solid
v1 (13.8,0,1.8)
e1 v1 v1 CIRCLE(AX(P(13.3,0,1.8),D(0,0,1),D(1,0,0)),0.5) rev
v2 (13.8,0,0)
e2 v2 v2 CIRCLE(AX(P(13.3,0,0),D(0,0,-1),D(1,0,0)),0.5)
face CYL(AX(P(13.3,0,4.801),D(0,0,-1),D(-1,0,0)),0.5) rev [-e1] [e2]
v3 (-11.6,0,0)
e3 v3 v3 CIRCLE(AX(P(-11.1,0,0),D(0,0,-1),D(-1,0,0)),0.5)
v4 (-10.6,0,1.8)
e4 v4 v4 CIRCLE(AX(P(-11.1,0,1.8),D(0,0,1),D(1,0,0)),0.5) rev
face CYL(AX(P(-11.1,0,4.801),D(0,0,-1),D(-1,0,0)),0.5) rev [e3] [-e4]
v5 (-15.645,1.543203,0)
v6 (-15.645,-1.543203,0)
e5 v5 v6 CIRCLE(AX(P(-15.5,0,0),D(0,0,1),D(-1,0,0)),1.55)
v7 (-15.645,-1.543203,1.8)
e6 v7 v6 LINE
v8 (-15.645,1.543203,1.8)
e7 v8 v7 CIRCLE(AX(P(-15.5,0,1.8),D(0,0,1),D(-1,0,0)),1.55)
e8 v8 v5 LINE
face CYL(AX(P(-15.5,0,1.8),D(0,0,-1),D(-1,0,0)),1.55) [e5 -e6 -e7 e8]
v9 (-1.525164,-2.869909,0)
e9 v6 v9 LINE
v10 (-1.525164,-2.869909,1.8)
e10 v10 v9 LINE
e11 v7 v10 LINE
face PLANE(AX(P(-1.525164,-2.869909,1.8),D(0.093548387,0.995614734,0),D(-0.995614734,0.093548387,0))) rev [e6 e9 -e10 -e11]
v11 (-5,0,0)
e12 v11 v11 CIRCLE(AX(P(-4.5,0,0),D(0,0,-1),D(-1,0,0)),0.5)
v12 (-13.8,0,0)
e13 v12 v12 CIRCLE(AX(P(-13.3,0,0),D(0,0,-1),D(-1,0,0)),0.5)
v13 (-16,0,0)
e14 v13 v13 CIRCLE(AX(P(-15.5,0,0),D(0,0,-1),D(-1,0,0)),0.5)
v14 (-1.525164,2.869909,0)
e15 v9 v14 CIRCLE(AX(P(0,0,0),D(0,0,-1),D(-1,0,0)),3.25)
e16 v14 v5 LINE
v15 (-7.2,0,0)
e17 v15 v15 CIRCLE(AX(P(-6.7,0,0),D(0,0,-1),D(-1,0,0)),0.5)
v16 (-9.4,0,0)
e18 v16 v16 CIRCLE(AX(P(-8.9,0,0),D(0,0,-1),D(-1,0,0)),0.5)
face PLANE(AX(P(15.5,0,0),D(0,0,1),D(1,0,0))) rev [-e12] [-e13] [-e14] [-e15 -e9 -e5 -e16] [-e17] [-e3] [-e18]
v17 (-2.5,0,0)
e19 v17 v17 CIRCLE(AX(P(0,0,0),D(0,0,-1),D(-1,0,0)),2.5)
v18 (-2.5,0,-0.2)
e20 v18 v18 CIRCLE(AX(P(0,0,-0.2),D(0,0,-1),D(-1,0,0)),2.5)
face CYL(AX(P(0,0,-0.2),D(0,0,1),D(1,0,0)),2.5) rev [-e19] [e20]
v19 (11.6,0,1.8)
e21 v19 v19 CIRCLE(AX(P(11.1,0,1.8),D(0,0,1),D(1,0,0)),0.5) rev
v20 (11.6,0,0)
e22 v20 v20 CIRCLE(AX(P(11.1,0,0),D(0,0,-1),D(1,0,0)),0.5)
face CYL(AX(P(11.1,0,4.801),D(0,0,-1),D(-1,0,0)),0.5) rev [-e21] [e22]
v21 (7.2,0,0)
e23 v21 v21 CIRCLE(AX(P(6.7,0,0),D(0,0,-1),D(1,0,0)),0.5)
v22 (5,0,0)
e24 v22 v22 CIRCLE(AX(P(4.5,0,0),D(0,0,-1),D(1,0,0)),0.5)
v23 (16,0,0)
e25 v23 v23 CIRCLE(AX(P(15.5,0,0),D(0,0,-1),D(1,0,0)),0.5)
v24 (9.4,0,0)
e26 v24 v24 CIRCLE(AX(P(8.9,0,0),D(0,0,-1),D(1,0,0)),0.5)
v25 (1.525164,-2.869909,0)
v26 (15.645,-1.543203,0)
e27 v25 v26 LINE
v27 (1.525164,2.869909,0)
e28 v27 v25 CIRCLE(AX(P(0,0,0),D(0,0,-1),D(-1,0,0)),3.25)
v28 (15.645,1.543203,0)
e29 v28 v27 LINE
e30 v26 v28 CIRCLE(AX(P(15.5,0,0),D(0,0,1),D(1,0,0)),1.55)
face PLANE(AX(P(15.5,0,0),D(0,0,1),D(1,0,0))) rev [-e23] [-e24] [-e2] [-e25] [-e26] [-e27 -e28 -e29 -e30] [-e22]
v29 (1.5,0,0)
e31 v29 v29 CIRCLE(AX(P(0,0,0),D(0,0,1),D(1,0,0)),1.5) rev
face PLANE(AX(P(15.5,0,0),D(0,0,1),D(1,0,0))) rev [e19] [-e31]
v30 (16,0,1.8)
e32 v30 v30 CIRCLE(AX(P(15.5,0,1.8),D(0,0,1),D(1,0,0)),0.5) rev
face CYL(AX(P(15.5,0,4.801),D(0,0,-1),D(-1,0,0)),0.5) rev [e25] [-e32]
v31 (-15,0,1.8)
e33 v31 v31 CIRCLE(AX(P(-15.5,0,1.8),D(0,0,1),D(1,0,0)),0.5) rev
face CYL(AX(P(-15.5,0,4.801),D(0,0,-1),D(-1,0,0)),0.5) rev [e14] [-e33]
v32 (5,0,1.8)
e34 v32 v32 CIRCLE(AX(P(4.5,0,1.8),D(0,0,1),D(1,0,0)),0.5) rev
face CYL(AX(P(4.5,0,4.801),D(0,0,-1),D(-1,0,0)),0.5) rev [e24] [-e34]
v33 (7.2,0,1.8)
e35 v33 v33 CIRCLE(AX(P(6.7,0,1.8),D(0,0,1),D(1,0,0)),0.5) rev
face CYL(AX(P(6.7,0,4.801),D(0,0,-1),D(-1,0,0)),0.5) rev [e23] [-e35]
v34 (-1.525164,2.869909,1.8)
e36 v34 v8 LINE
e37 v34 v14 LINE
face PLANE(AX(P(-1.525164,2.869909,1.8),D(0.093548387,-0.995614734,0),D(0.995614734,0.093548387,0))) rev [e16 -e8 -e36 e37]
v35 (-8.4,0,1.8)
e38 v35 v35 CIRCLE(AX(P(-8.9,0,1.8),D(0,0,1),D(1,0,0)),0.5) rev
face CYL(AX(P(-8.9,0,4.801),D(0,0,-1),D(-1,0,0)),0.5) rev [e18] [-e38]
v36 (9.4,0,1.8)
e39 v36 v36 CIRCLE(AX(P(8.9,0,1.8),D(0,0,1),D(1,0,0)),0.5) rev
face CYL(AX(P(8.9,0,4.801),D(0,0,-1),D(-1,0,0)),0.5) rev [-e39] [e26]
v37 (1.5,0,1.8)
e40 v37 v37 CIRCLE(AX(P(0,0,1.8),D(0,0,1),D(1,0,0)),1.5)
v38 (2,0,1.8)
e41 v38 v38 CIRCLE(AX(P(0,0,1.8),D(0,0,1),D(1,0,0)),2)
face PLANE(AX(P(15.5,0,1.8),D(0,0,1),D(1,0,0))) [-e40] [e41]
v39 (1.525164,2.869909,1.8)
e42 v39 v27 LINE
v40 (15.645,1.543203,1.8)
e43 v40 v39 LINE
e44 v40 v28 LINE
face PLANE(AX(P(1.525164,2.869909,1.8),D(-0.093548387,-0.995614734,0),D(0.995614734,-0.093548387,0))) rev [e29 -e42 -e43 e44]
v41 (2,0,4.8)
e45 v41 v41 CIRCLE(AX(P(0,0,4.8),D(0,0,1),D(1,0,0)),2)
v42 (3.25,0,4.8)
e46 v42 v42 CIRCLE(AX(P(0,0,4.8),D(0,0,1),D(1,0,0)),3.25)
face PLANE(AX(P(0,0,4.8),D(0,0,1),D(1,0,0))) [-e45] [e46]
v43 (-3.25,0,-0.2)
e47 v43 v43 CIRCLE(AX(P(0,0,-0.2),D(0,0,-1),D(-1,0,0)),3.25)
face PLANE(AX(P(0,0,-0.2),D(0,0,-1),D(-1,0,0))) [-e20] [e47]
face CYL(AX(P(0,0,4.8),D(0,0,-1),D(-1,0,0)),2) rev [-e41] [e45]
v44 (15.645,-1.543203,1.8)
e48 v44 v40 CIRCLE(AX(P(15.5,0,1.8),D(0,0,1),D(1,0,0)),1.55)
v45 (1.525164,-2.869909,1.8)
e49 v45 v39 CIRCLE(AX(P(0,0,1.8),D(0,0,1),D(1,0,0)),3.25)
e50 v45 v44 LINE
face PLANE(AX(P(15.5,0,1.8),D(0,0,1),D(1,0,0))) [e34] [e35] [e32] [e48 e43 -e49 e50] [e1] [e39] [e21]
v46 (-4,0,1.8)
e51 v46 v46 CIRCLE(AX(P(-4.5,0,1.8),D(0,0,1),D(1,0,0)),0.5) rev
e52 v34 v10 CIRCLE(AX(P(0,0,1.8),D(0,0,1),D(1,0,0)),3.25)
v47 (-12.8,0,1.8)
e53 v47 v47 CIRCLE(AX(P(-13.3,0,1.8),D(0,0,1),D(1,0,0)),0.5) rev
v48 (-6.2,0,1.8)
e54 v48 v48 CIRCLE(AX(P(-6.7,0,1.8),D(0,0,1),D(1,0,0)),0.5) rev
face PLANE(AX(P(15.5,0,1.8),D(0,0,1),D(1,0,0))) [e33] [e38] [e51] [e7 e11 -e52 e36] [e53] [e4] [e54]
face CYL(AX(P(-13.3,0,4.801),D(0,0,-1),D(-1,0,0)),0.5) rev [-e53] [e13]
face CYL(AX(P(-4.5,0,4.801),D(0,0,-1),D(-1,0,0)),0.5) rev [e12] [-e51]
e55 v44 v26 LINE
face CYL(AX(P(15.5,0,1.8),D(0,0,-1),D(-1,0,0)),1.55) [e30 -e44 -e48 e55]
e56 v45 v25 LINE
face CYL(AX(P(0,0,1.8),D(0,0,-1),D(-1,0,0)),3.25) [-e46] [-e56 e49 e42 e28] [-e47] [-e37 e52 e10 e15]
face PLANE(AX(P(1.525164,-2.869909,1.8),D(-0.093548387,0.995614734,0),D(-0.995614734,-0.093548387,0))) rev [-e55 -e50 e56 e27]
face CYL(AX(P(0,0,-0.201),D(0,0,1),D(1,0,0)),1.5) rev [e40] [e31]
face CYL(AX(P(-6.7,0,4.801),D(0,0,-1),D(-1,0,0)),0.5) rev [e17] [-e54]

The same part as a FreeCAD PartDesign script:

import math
import FreeCAD as App
import Part
import Sketcher
Q = App.Units.Quantity

doc = App.newDocument("Part")
body = doc.addObject("PartDesign::Body", "Body")

sketch1 = doc.addObject("Sketcher::SketchObject", "Sketch")
body.addObject(sketch1)
sketch1.AttachmentSupport = (doc.XY_Plane, [""])
sketch1.MapMode = "FlatFace"
sketch1.addGeometry([
    Part.LineSegment(App.Vector(15.6, 1.5, 0), App.Vector(1.5, 2.9, 0)),
    Part.ArcOfCircle(Part.Circle(App.Vector(0, 0, 0), App.Vector(0, 0, 1), 3.2), math.radians(62), math.radians(118)),
    Part.LineSegment(App.Vector(-1.5, 2.9, 0), App.Vector(-15.6, 1.5, 0)),
    Part.ArcOfCircle(Part.Circle(App.Vector(-15.5, 0, 0), App.Vector(0, 0, 1), 1.6), math.radians(95), math.radians(265)),
    Part.LineSegment(App.Vector(-15.6, -1.5, 0), App.Vector(-1.5, -2.9, 0)),
    Part.ArcOfCircle(Part.Circle(App.Vector(0, 0, 0), App.Vector(0, 0, 1), 3.2), math.radians(-118), math.radians(-62)),
    Part.LineSegment(App.Vector(1.5, -2.9, 0), App.Vector(15.6, -1.5, 0)),
    Part.ArcOfCircle(Part.Circle(App.Vector(15.5, 0, 0), App.Vector(0, 0, 1), 1.6), math.radians(-85), math.radians(85)),
], False)
sketch1.addConstraint([
    Sketcher.Constraint("Coincident", 0, 2, 1, 1),
    Sketcher.Constraint("Coincident", 1, 2, 2, 1),
    Sketcher.Constraint("Tangent", 2, 2, 3, 1),
    Sketcher.Constraint("Tangent", 3, 2, 4, 1),
    Sketcher.Constraint("Coincident", 4, 2, 5, 1),
    Sketcher.Constraint("Coincident", 5, 2, 6, 1),
    Sketcher.Constraint("Tangent", 6, 2, 7, 1),
    Sketcher.Constraint("Tangent", 7, 2, 0, 1),
    Sketcher.Constraint("Coincident", 1, 3, -1, 1),
    Sketcher.Constraint("Coincident", 5, 3, -1, 1),
    Sketcher.Constraint("Equal", 1, 5),
    Sketcher.Constraint("Equal", 3, 7),
    Sketcher.Constraint("Symmetric", 3, 3, 7, 3, -1, 1),
    Sketcher.Constraint("Symmetric", 3, 2, 6, 2, -2),
    Sketcher.Constraint("Parallel", 0, 4),
    Sketcher.Constraint("Parallel", 2, 6),
    Sketcher.Constraint("Radius", 1, Q("3.25 mm")),
    Sketcher.Constraint("Radius", 3, Q("1.55 mm")),
    Sketcher.Constraint("DistanceX", 3, 3, 7, 3, Q("31 mm")),
    Sketcher.Constraint("DistanceX", 2, 2, -1, 1, Q("15.645 mm")),
])
pad1 = doc.addObject("PartDesign::Pad", "Pad")
body.addObject(pad1)
pad1.Profile = sketch1
pad1.Length = 1.8

sketch2 = doc.addObject("Sketcher::SketchObject", "Sketch001")
body.addObject(sketch2)
sketch2.AttachmentSupport = (doc.XY_Plane, [""])
sketch2.MapMode = "FlatFace"
sketch2.addGeometry([
    Part.Circle(App.Vector(0, 0, 0), App.Vector(0, 0, 1), 3.2),
    Part.Circle(App.Vector(0, 0, 0), App.Vector(0, 0, 1), 2.5),
], False)
sketch2.addConstraint([
    Sketcher.Constraint("Coincident", 0, 3, -1, 1),
    Sketcher.Constraint("Coincident", 1, 3, -1, 1),
    Sketcher.Constraint("Diameter", 1, Q("5 mm")),
    Sketcher.Constraint("Diameter", 0, Q("6.5 mm")),
])
pad2 = doc.addObject("PartDesign::Pad", "Pad001")
body.addObject(pad2)
pad2.Profile = sketch2
pad2.Length = 0.2
pad2.Reversed = True

sketch3 = doc.addObject("Sketcher::SketchObject", "Sketch002")
body.addObject(sketch3)
sketch3.AttachmentSupport = (doc.XY_Plane, [""])
sketch3.MapMode = "FlatFace"
sketch3.AttachmentOffset = App.Placement(App.Vector(0, 0, 1.8), App.Rotation())
sketch3.addGeometry([
    Part.Circle(App.Vector(0, 0, 0), App.Vector(0, 0, 1), 3.2),
    Part.Circle(App.Vector(0, 0, 0), App.Vector(0, 0, 1), 2),
], False)
sketch3.addConstraint([
    Sketcher.Constraint("Coincident", 0, 3, -1, 1),
    Sketcher.Constraint("Coincident", 1, 3, -1, 1),
    Sketcher.Constraint("Diameter", 1, Q("4 mm")),
    Sketcher.Constraint("Diameter", 0, Q("6.5 mm")),
])
pad3 = doc.addObject("PartDesign::Pad", "Pad002")
body.addObject(pad3)
pad3.Profile = sketch3
pad3.Length = 3

sketch4 = doc.addObject("Sketcher::SketchObject", "Sketch003")
body.addObject(sketch4)
sketch4.AttachmentSupport = (doc.XY_Plane, [""])
sketch4.MapMode = "FlatFace"
sketch4.AttachmentOffset = App.Placement(App.Vector(0, 0, 1.8), App.Rotation())
sketch4.addGeometry(Part.Circle(App.Vector(0, 0, 0), App.Vector(0, 0, 1), 1.5), False)
sketch4.addConstraint([
    Sketcher.Constraint("Coincident", 0, 3, -1, 1),
    Sketcher.Constraint("Diameter", 0, Q("3 mm")),
])
pocket1 = doc.addObject("PartDesign::Pocket", "Pocket")
body.addObject(pocket1)
pocket1.Profile = sketch4
pocket1.Type = "UpToFirst"

sketch5 = doc.addObject("Sketcher::SketchObject", "Sketch004")
body.addObject(sketch5)
sketch5.AttachmentSupport = (doc.XY_Plane, [""])
sketch5.MapMode = "FlatFace"
sketch5.addGeometry(Part.Circle(App.Vector(-15.5, 0, 0), App.Vector(0, 0, 1), 0.5), False)
sketch5.addConstraint([
    Sketcher.Constraint("PointOnObject", 0, 3, -1),
    Sketcher.Constraint("Diameter", 0, Q("1 mm")),
    Sketcher.Constraint("DistanceX", 0, 3, -1, 1, Q("15.5 mm")),
])
pocket2 = doc.addObject("PartDesign::Pocket", "Pocket001")
body.addObject(pocket2)
pocket2.Profile = sketch5
pocket2.Type = "UpToFirst"
pocket2.Reversed = True

sketch6 = doc.addObject("Sketcher::SketchObject", "Sketch005")
body.addObject(sketch6)
sketch6.AttachmentSupport = (doc.XY_Plane, [""])
sketch6.MapMode = "FlatFace"
sketch6.addGeometry(Part.Circle(App.Vector(-13.3, 0, 0), App.Vector(0, 0, 1), 0.5), False)
sketch6.addConstraint([
    Sketcher.Constraint("PointOnObject", 0, 3, -1),
    Sketcher.Constraint("Diameter", 0, Q("1 mm")),
    Sketcher.Constraint("DistanceX", 0, 3, -1, 1, Q("13.3 mm")),
])
pocket3 = doc.addObject("PartDesign::Pocket", "Pocket002")
body.addObject(pocket3)
pocket3.Profile = sketch6
pocket3.Type = "UpToFirst"
pocket3.Reversed = True

sketch7 = doc.addObject("Sketcher::SketchObject", "Sketch006")
body.addObject(sketch7)
sketch7.AttachmentSupport = (doc.XY_Plane, [""])
sketch7.MapMode = "FlatFace"
sketch7.addGeometry(Part.Circle(App.Vector(-11.1, 0, 0), App.Vector(0, 0, 1), 0.5), False)
sketch7.addConstraint([
    Sketcher.Constraint("PointOnObject", 0, 3, -1),
    Sketcher.Constraint("Diameter", 0, Q("1 mm")),
    Sketcher.Constraint("DistanceX", 0, 3, -1, 1, Q("11.1 mm")),
])
pocket4 = doc.addObject("PartDesign::Pocket", "Pocket003")
body.addObject(pocket4)
pocket4.Profile = sketch7
pocket4.Type = "UpToFirst"
pocket4.Reversed = True

sketch8 = doc.addObject("Sketcher::SketchObject", "Sketch007")
body.addObject(sketch8)
sketch8.AttachmentSupport = (doc.XY_Plane, [""])
sketch8.MapMode = "FlatFace"
sketch8.addGeometry(Part.Circle(App.Vector(-8.9, 0, 0), App.Vector(0, 0, 1), 0.5), False)
sketch8.addConstraint([
    Sketcher.Constraint("PointOnObject", 0, 3, -1),
    Sketcher.Constraint("Diameter", 0, Q("1 mm")),
    Sketcher.Constraint("DistanceX", 0, 3, -1, 1, Q("8.9 mm")),
])
pocket5 = doc.addObject("PartDesign::Pocket", "Pocket004")
body.addObject(pocket5)
pocket5.Profile = sketch8
pocket5.Type = "UpToFirst"
pocket5.Reversed = True

sketch9 = doc.addObject("Sketcher::SketchObject", "Sketch008")
body.addObject(sketch9)
sketch9.AttachmentSupport = (doc.XY_Plane, [""])
sketch9.MapMode = "FlatFace"
sketch9.addGeometry(Part.Circle(App.Vector(-6.7, 0, 0), App.Vector(0, 0, 1), 0.5), False)
sketch9.addConstraint([
    Sketcher.Constraint("PointOnObject", 0, 3, -1),
    Sketcher.Constraint("Diameter", 0, Q("1 mm")),
    Sketcher.Constraint("DistanceX", 0, 3, -1, 1, Q("6.7 mm")),
])
pocket6 = doc.addObject("PartDesign::Pocket", "Pocket005")
body.addObject(pocket6)
pocket6.Profile = sketch9
pocket6.Type = "UpToFirst"
pocket6.Reversed = True

sketch10 = doc.addObject("Sketcher::SketchObject", "Sketch009")
body.addObject(sketch10)
sketch10.AttachmentSupport = (doc.XY_Plane, [""])
sketch10.MapMode = "FlatFace"
sketch10.addGeometry(Part.Circle(App.Vector(-4.5, 0, 0), App.Vector(0, 0, 1), 0.5), False)
sketch10.addConstraint([
    Sketcher.Constraint("PointOnObject", 0, 3, -1),
    Sketcher.Constraint("Diameter", 0, Q("1 mm")),
    Sketcher.Constraint("DistanceX", 0, 3, -1, 1, Q("4.5 mm")),
])
pocket7 = doc.addObject("PartDesign::Pocket", "Pocket006")
body.addObject(pocket7)
pocket7.Profile = sketch10
pocket7.Type = "UpToFirst"
pocket7.Reversed = True

sketch11 = doc.addObject("Sketcher::SketchObject", "Sketch010")
body.addObject(sketch11)
sketch11.AttachmentSupport = (doc.XY_Plane, [""])
sketch11.MapMode = "FlatFace"
sketch11.addGeometry(Part.Circle(App.Vector(4.5, 0, 0), App.Vector(0, 0, 1), 0.5), False)
sketch11.addConstraint([
    Sketcher.Constraint("PointOnObject", 0, 3, -1),
    Sketcher.Constraint("Diameter", 0, Q("1 mm")),
    Sketcher.Constraint("DistanceX", -1, 1, 0, 3, Q("4.5 mm")),
])
pocket8 = doc.addObject("PartDesign::Pocket", "Pocket007")
body.addObject(pocket8)
pocket8.Profile = sketch11
pocket8.Type = "UpToFirst"
pocket8.Reversed = True

sketch12 = doc.addObject("Sketcher::SketchObject", "Sketch011")
body.addObject(sketch12)
sketch12.AttachmentSupport = (doc.XY_Plane, [""])
sketch12.MapMode = "FlatFace"
sketch12.addGeometry(Part.Circle(App.Vector(6.7, 0, 0), App.Vector(0, 0, 1), 0.5), False)
sketch12.addConstraint([
    Sketcher.Constraint("PointOnObject", 0, 3, -1),
    Sketcher.Constraint("Diameter", 0, Q("1 mm")),
    Sketcher.Constraint("DistanceX", -1, 1, 0, 3, Q("6.7 mm")),
])
pocket9 = doc.addObject("PartDesign::Pocket", "Pocket008")
body.addObject(pocket9)
pocket9.Profile = sketch12
pocket9.Type = "UpToFirst"
pocket9.Reversed = True

sketch13 = doc.addObject("Sketcher::SketchObject", "Sketch012")
body.addObject(sketch13)
sketch13.AttachmentSupport = (doc.XY_Plane, [""])
sketch13.MapMode = "FlatFace"
sketch13.addGeometry(Part.Circle(App.Vector(8.9, 0, 0), App.Vector(0, 0, 1), 0.5), False)
sketch13.addConstraint([
    Sketcher.Constraint("PointOnObject", 0, 3, -1),
    Sketcher.Constraint("Diameter", 0, Q("1 mm")),
    Sketcher.Constraint("DistanceX", -1, 1, 0, 3, Q("8.9 mm")),
])
pocket10 = doc.addObject("PartDesign::Pocket", "Pocket009")
body.addObject(pocket10)
pocket10.Profile = sketch13
pocket10.Type = "UpToFirst"
pocket10.Reversed = True

sketch14 = doc.addObject("Sketcher::SketchObject", "Sketch013")
body.addObject(sketch14)
sketch14.AttachmentSupport = (doc.XY_Plane, [""])
sketch14.MapMode = "FlatFace"
sketch14.addGeometry(Part.Circle(App.Vector(11.1, 0, 0), App.Vector(0, 0, 1), 0.5), False)
sketch14.addConstraint([
    Sketcher.Constraint("PointOnObject", 0, 3, -1),
    Sketcher.Constraint("Diameter", 0, Q("1 mm")),
    Sketcher.Constraint("DistanceX", -1, 1, 0, 3, Q("11.1 mm")),
])
pocket11 = doc.addObject("PartDesign::Pocket", "Pocket010")
body.addObject(pocket11)
pocket11.Profile = sketch14
pocket11.Type = "UpToFirst"
pocket11.Reversed = True

sketch15 = doc.addObject("Sketcher::SketchObject", "Sketch014")
body.addObject(sketch15)
sketch15.AttachmentSupport = (doc.XY_Plane, [""])
sketch15.MapMode = "FlatFace"
sketch15.addGeometry(Part.Circle(App.Vector(13.3, 0, 0), App.Vector(0, 0, 1), 0.5), False)
sketch15.addConstraint([
    Sketcher.Constraint("PointOnObject", 0, 3, -1),
    Sketcher.Constraint("Diameter", 0, Q("1 mm")),
    Sketcher.Constraint("DistanceX", -1, 1, 0, 3, Q("13.3 mm")),
])
pocket12 = doc.addObject("PartDesign::Pocket", "Pocket011")
body.addObject(pocket12)
pocket12.Profile = sketch15
pocket12.Type = "UpToFirst"
pocket12.Reversed = True

sketch16 = doc.addObject("Sketcher::SketchObject", "Sketch015")
body.addObject(sketch16)
sketch16.AttachmentSupport = (doc.XY_Plane, [""])
sketch16.MapMode = "FlatFace"
sketch16.addGeometry(Part.Circle(App.Vector(15.5, 0, 0), App.Vector(0, 0, 1), 0.5), False)
sketch16.addConstraint([
    Sketcher.Constraint("PointOnObject", 0, 3, -1),
    Sketcher.Constraint("Diameter", 0, Q("1 mm")),
    Sketcher.Constraint("DistanceX", -1, 1, 0, 3, Q("15.5 mm")),
])
pocket13 = doc.addObject("PartDesign::Pocket", "Pocket012")
body.addObject(pocket13)
pocket13.Profile = sketch16
pocket13.Type = "UpToFirst"
pocket13.Reversed = True

doc.recompute()
